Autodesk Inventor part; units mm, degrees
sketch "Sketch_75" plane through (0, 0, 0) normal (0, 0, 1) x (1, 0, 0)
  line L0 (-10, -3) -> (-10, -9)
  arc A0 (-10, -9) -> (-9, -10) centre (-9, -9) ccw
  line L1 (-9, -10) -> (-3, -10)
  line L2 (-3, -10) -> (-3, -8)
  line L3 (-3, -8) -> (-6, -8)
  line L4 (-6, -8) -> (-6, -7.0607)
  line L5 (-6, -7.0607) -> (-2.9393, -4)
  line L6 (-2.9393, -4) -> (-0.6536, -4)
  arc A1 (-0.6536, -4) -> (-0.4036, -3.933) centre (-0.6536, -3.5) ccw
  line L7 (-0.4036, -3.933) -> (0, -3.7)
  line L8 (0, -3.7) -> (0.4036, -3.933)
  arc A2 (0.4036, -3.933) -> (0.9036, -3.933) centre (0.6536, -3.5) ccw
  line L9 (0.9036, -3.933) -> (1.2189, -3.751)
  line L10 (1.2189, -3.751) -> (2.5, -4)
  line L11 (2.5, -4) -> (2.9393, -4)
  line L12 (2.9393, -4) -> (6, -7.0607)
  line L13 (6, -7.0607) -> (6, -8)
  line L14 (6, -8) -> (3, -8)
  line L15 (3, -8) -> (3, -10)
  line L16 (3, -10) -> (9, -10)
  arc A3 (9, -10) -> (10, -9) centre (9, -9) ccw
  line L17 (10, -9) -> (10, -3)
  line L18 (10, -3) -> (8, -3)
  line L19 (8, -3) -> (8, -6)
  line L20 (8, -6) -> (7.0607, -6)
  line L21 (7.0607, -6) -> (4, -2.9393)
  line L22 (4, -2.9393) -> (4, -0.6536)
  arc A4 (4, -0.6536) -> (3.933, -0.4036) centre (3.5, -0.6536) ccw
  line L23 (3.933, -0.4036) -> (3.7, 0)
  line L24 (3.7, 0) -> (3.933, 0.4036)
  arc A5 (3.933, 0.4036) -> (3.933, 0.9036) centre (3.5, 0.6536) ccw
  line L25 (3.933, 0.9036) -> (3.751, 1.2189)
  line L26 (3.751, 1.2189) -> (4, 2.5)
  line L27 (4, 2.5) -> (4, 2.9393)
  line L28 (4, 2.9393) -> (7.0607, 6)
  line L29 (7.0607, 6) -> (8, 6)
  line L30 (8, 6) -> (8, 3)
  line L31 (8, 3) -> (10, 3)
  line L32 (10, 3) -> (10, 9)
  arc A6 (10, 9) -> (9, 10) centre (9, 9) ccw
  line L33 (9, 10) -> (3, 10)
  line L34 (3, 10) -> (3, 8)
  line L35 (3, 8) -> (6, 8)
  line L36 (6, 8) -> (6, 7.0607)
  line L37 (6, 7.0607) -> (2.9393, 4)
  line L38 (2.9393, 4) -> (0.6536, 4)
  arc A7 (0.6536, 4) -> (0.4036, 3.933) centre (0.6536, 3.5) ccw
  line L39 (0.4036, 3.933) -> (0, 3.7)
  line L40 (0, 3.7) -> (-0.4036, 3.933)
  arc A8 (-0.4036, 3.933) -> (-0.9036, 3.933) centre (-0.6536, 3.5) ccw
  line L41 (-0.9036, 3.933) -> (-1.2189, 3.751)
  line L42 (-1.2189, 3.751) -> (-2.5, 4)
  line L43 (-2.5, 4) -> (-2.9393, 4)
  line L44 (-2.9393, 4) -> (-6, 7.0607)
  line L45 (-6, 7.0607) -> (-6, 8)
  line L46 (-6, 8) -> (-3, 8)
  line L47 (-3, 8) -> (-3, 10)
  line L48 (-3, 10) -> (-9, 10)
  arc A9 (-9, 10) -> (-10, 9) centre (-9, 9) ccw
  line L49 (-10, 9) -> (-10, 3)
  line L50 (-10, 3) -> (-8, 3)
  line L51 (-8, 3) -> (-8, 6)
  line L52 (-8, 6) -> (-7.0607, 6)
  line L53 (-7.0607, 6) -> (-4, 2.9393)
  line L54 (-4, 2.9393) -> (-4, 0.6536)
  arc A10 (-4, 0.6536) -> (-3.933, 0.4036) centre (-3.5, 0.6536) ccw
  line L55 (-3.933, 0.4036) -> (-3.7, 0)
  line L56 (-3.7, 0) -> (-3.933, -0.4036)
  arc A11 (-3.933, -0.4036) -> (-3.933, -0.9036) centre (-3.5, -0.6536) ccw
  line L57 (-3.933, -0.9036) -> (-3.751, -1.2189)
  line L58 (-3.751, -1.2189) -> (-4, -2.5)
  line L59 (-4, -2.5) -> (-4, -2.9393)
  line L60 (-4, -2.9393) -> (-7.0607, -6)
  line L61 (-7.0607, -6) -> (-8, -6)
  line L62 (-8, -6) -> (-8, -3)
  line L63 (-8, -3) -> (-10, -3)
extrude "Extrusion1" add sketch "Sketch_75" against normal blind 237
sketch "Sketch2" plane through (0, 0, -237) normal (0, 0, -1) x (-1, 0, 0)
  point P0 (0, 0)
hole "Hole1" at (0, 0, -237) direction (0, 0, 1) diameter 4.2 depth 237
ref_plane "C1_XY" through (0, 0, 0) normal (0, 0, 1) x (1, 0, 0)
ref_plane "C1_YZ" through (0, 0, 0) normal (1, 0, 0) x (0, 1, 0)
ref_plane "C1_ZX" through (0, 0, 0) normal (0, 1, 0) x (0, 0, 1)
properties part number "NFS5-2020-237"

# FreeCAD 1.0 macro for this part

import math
import FreeCAD as App
import Part
import Sketcher
Q = App.Units.Quantity

doc = App.newDocument("Part")
body = doc.addObject("PartDesign::Body", "Body")

# Sketch on XY plane
sketch1 = doc.addObject("Sketcher::SketchObject", "Sketch")
body.addObject(sketch1)
sketch1.AttachmentSupport = (doc.XY_Plane, [""])
sketch1.MapMode = "FlatFace"
sketch1.addGeometry([
    Part.LineSegment(App.Vector(-8, -3, 0), App.Vector(-10, -3, 0)),  # 0
    Part.LineSegment(App.Vector(-10, -3, 0), App.Vector(-10, -9, 0)),  # 1
    Part.ArcOfCircle(Part.Circle(App.Vector(-9, -9, 0), App.Vector(0, 0, 1), 1), math.radians(180), math.radians(270)),  # 2
    Part.LineSegment(App.Vector(-9, -10, 0), App.Vector(-3, -10, 0)),  # 3
    Part.LineSegment(App.Vector(-3, -10, 0), App.Vector(-3, -8, 0)),  # 4
    Part.LineSegment(App.Vector(-3, -8, 0), App.Vector(-6, -8, 0)),  # 5
    Part.LineSegment(App.Vector(-6, -8, 0), App.Vector(-6, -7.06, 0)),  # 6
    Part.LineSegment(App.Vector(-6, -7.06, 0), App.Vector(-2.94, -4, 0)),  # 7
    Part.LineSegment(App.Vector(-2.94, -4, 0), App.Vector(-0.65, -4, 0)),  # 8
    Part.ArcOfCircle(Part.Circle(App.Vector(-0.65, -3.5, 0), App.Vector(0, 0, 1), 0.5), math.radians(-90), math.radians(-60)),  # 9
    Part.LineSegment(App.Vector(-0.4, -3.93, 0), App.Vector(0, -3.7, 0)),  # 10
    Part.LineSegment(App.Vector(0, -3.7, 0), App.Vector(0.4, -3.93, 0)),  # 11
    Part.ArcOfCircle(Part.Circle(App.Vector(0.65, -3.5, 0), App.Vector(0, 0, 1), 0.5), math.radians(-120), math.radians(-60)),  # 12
    Part.LineSegment(App.Vector(0.9, -3.93, 0), App.Vector(1.22, -3.75, 0)),  # 13
    Part.LineSegment(App.Vector(1.22, -3.75, 0), App.Vector(2.5, -4, 0)),  # 14
    Part.LineSegment(App.Vector(2.5, -4, 0), App.Vector(2.94, -4, 0)),  # 15
    Part.LineSegment(App.Vector(2.94, -4, 0), App.Vector(6, -7.06, 0)),  # 16
    Part.LineSegment(App.Vector(6, -7.06, 0), App.Vector(6, -8, 0)),  # 17
    Part.LineSegment(App.Vector(6, -8, 0), App.Vector(3, -8, 0)),  # 18
    Part.LineSegment(App.Vector(3, -8, 0), App.Vector(3, -10, 0)),  # 19
    Part.LineSegment(App.Vector(3, -10, 0), App.Vector(9, -10, 0)),  # 20
    Part.ArcOfCircle(Part.Circle(App.Vector(9, -9, 0), App.Vector(0, 0, 1), 1), math.radians(-90), math.radians(0)),  # 21
    Part.LineSegment(App.Vector(10, -9, 0), App.Vector(10, -3, 0)),  # 22
    Part.LineSegment(App.Vector(10, -3, 0), App.Vector(8, -3, 0)),  # 23
    Part.LineSegment(App.Vector(8, -3, 0), App.Vector(8, -6, 0)),  # 24
    Part.LineSegment(App.Vector(8, -6, 0), App.Vector(7.06, -6, 0)),  # 25
    Part.LineSegment(App.Vector(7.06, -6, 0), App.Vector(4, -2.94, 0)),  # 26
    Part.LineSegment(App.Vector(4, -2.94, 0), App.Vector(4, -0.65, 0)),  # 27
    Part.ArcOfCircle(Part.Circle(App.Vector(3.5, -0.65, 0), App.Vector(0, 0, 1), 0.5), math.radians(0), math.radians(30)),  # 28
    Part.LineSegment(App.Vector(3.93, -0.4, 0), App.Vector(3.7, 0, 0)),  # 29
    Part.LineSegment(App.Vector(3.7, 0, 0), App.Vector(3.93, 0.4, 0)),  # 30
    Part.ArcOfCircle(Part.Circle(App.Vector(3.5, 0.65, 0), App.Vector(0, 0, 1), 0.5), math.radians(-30), math.radians(30)),  # 31
    Part.LineSegment(App.Vector(3.93, 0.9, 0), App.Vector(3.75, 1.22, 0)),  # 32
    Part.LineSegment(App.Vector(3.75, 1.22, 0), App.Vector(4, 2.5, 0)),  # 33
    Part.LineSegment(App.Vector(4, 2.5, 0), App.Vector(4, 2.94, 0)),  # 34
    Part.LineSegment(App.Vector(4, 2.94, 0), App.Vector(7.06, 6, 0)),  # 35
    Part.LineSegment(App.Vector(7.06, 6, 0), App.Vector(8, 6, 0)),  # 36
    Part.LineSegment(App.Vector(8, 6, 0), App.Vector(8, 3, 0)),  # 37
    Part.LineSegment(App.Vector(8, 3, 0), App.Vector(10, 3, 0)),  # 38
    Part.LineSegment(App.Vector(10, 3, 0), App.Vector(10, 9, 0)),  # 39
    Part.ArcOfCircle(Part.Circle(App.Vector(9, 9, 0), App.Vector(0, 0, 1), 1), math.radians(0), math.radians(90)),  # 40
    Part.LineSegment(App.Vector(9, 10, 0), App.Vector(3, 10, 0)),  # 41
    Part.LineSegment(App.Vector(3, 10, 0), App.Vector(3, 8, 0)),  # 42
    Part.LineSegment(App.Vector(3, 8, 0), App.Vector(6, 8, 0)),  # 43
    Part.LineSegment(App.Vector(6, 8, 0), App.Vector(6, 7.06, 0)),  # 44
    Part.LineSegment(App.Vector(6, 7.06, 0), App.Vector(2.94, 4, 0)),  # 45
    Part.LineSegment(App.Vector(2.94, 4, 0), App.Vector(0.65, 4, 0)),  # 46
    Part.ArcOfCircle(Part.Circle(App.Vector(0.65, 3.5, 0), App.Vector(0, 0, 1), 0.5), math.radians(90), math.radians(120)),  # 47
    Part.LineSegment(App.Vector(0.4, 3.93, 0), App.Vector(0, 3.7, 0)),  # 48
    Part.LineSegment(App.Vector(0, 3.7, 0), App.Vector(-0.4, 3.93, 0)),  # 49
    Part.ArcOfCircle(Part.Circle(App.Vector(-0.65, 3.5, 0), App.Vector(0, 0, 1), 0.5), math.radians(60), math.radians(120)),  # 50
    Part.LineSegment(App.Vector(-0.9, 3.93, 0), App.Vector(-1.22, 3.75, 0)),  # 51
    Part.LineSegment(App.Vector(-1.22, 3.75, 0), App.Vector(-2.5, 4, 0)),  # 52
    Part.LineSegment(App.Vector(-2.5, 4, 0), App.Vector(-2.94, 4, 0)),  # 53
    Part.LineSegment(App.Vector(-2.94, 4, 0), App.Vector(-6, 7.06, 0)),  # 54
    Part.LineSegment(App.Vector(-6, 7.06, 0), App.Vector(-6, 8, 0)),  # 55
    Part.LineSegment(App.Vector(-6, 8, 0), App.Vector(-3, 8, 0)),  # 56
    Part.LineSegment(App.Vector(-3, 8, 0), App.Vector(-3, 10, 0)),  # 57
    Part.LineSegment(App.Vector(-3, 10, 0), App.Vector(-9, 10, 0)),  # 58
    Part.ArcOfCircle(Part.Circle(App.Vector(-9, 9, 0), App.Vector(0, 0, 1), 1), math.radians(90), math.radians(180)),  # 59
    Part.LineSegment(App.Vector(-10, 9, 0), App.Vector(-10, 3, 0)),  # 60
    Part.LineSegment(App.Vector(-10, 3, 0), App.Vector(-8, 3, 0)),  # 61
    Part.LineSegment(App.Vector(-8, 3, 0), App.Vector(-8, 6, 0)),  # 62
    Part.LineSegment(App.Vector(-8, 6, 0), App.Vector(-7.06, 6, 0)),  # 63
    Part.LineSegment(App.Vector(-7.06, 6, 0), App.Vector(-4, 2.94, 0)),  # 64
    Part.LineSegment(App.Vector(-4, 2.94, 0), App.Vector(-4, 0.65, 0)),  # 65
    Part.ArcOfCircle(Part.Circle(App.Vector(-3.5, 0.65, 0), App.Vector(0, 0, 1), 0.5), math.radians(180), math.radians(210)),  # 66
    Part.LineSegment(App.Vector(-3.93, 0.4, 0), App.Vector(-3.7, 0, 0)),  # 67
    Part.LineSegment(App.Vector(-3.7, 0, 0), App.Vector(-3.93, -0.4, 0)),  # 68
    Part.ArcOfCircle(Part.Circle(App.Vector(-3.5, -0.65, 0), App.Vector(0, 0, 1), 0.5), math.radians(150), math.radians(210)),  # 69
    Part.LineSegment(App.Vector(-3.93, -0.9, 0), App.Vector(-3.75, -1.22, 0)),  # 70
    Part.LineSegment(App.Vector(-3.75, -1.22, 0), App.Vector(-4, -2.5, 0)),  # 71
    Part.LineSegment(App.Vector(-4, -2.5, 0), App.Vector(-4, -2.94, 0)),  # 72
    Part.LineSegment(App.Vector(-4, -2.94, 0), App.Vector(-7.06, -6, 0)),  # 73
    Part.LineSegment(App.Vector(-7.06, -6, 0), App.Vector(-8, -6, 0)),  # 74
    Part.LineSegment(App.Vector(-8, -6, 0), App.Vector(-8, -3, 0)),  # 75
], False)
sketch1.addConstraint([
    Sketcher.Constraint("Coincident", 0, 2, 1, 1),
    Sketcher.Constraint("Tangent", 1, 2, 2, 1),
    Sketcher.Constraint("Tangent", 2, 2, 3, 1),
    Sketcher.Constraint("Coincident", 3, 2, 4, 1),
    Sketcher.Constraint("Coincident", 4, 2, 5, 1),
    Sketcher.Constraint("Coincident", 5, 2, 6, 1),
    Sketcher.Constraint("Coincident", 6, 2, 7, 1),
    Sketcher.Constraint("Coincident", 7, 2, 8, 1),
    Sketcher.Constraint("Tangent", 8, 2, 9, 1),
    Sketcher.Constraint("Tangent", 9, 2, 10, 1),
    Sketcher.Constraint("Coincident", 10, 2, 11, 1),
    Sketcher.Constraint("Tangent", 11, 2, 12, 1),
    Sketcher.Constraint("Tangent", 12, 2, 13, 1),
    Sketcher.Constraint("Coincident", 13, 2, 14, 1),
    Sketcher.Constraint("Coincident", 14, 2, 15, 1),
    Sketcher.Constraint("Coincident", 15, 2, 16, 1),
    Sketcher.Constraint("Coincident", 16, 2, 17, 1),
    Sketcher.Constraint("Coincident", 17, 2, 18, 1),
    Sketcher.Constraint("Coincident", 18, 2, 19, 1),
    Sketcher.Constraint("Coincident", 19, 2, 20, 1),
    Sketcher.Constraint("Tangent", 20, 2, 21, 1),
    Sketcher.Constraint("Tangent", 21, 2, 22, 1),
    Sketcher.Constraint("Coincident", 22, 2, 23, 1),
    Sketcher.Constraint("Coincident", 23, 2, 24, 1),
    Sketcher.Constraint("Coincident", 24, 2, 25, 1),
    Sketcher.Constraint("Coincident", 25, 2, 26, 1),
    Sketcher.Constraint("Coincident", 26, 2, 27, 1),
    Sketcher.Constraint("Tangent", 27, 2, 28, 1),
    Sketcher.Constraint("Tangent", 28, 2, 29, 1),
    Sketcher.Constraint("Coincident", 29, 2, 30, 1),
    Sketcher.Constraint("Tangent", 30, 2, 31, 1),
    Sketcher.Constraint("Tangent", 31, 2, 32, 1),
    Sketcher.Constraint("Coincident", 32, 2, 33, 1),
    Sketcher.Constraint("Coincident", 33, 2, 34, 1),
    Sketcher.Constraint("Coincident", 34, 2, 35, 1),
    Sketcher.Constraint("Coincident", 35, 2, 36, 1),
    Sketcher.Constraint("Coincident", 36, 2, 37, 1),
    Sketcher.Constraint("Coincident", 37, 2, 38, 1),
    Sketcher.Constraint("Coincident", 38, 2, 39, 1),
    Sketcher.Constraint("Tangent", 39, 2, 40, 1),
    Sketcher.Constraint("Tangent", 40, 2, 41, 1),
    Sketcher.Constraint("Coincident", 41, 2, 42, 1),
    Sketcher.Constraint("Coincident", 42, 2, 43, 1),
    Sketcher.Constraint("Coincident", 43, 2, 44, 1),
    Sketcher.Constraint("Coincident", 44, 2, 45, 1),
    Sketcher.Constraint("Coincident", 45, 2, 46, 1),
    Sketcher.Constraint("Tangent", 46, 2, 47, 1),
    Sketcher.Constraint("Tangent", 47, 2, 48, 1),
    Sketcher.Constraint("Coincident", 48, 2, 49, 1),
    Sketcher.Constraint("Tangent", 49, 2, 50, 1),
    Sketcher.Constraint("Tangent", 50, 2, 51, 1),
    Sketcher.Constraint("Coincident", 51, 2, 52, 1),
    Sketcher.Constraint("Coincident", 52, 2, 53, 1),
    Sketcher.Constraint("Coincident", 53, 2, 54, 1),
    Sketcher.Constraint("Coincident", 54, 2, 55, 1),
    Sketcher.Constraint("Coincident", 55, 2, 56, 1),
    Sketcher.Constraint("Coincident", 56, 2, 57, 1),
    Sketcher.Constraint("Coincident", 57, 2, 58, 1),
    Sketcher.Constraint("Tangent", 58, 2, 59, 1),
    Sketcher.Constraint("Tangent", 59, 2, 60, 1),
    Sketcher.Constraint("Coincident", 60, 2, 61, 1),
    Sketcher.Constraint("Coincident", 61, 2, 62, 1),
    Sketcher.Constraint("Coincident", 62, 2, 63, 1),
    Sketcher.Constraint("Coincident", 63, 2, 64, 1),
    Sketcher.Constraint("Coincident", 64, 2, 65, 1),
    Sketcher.Constraint("Tangent", 65, 2, 66, 1),
    Sketcher.Constraint("Tangent", 66, 2, 67, 1),
    Sketcher.Constraint("Coincident", 67, 2, 68, 1),
    Sketcher.Constraint("Tangent", 68, 2, 69, 1),
    Sketcher.Constraint("Tangent", 69, 2, 70, 1),
    Sketcher.Constraint("Coincident", 70, 2, 71, 1),
    Sketcher.Constraint("Coincident", 71, 2, 72, 1),
    Sketcher.Constraint("Coincident", 72, 2, 73, 1),
    Sketcher.Constraint("Coincident", 73, 2, 74, 1),
    Sketcher.Constraint("Coincident", 74, 2, 75, 1),
    Sketcher.Constraint("Coincident", 75, 2, 0, 1),
    Sketcher.Constraint("Horizontal", 0),
    Sketcher.Constraint("Vertical", 1),
    Sketcher.Constraint("Horizontal", 3),
    Sketcher.Constraint("Vertical", 4),
    Sketcher.Constraint("Horizontal", 5),
    Sketcher.Constraint("Vertical", 6),
    Sketcher.Constraint("Horizontal", 8),
    Sketcher.Constraint("Horizontal", 15),
    Sketcher.Constraint("Vertical", 17),
    Sketcher.Constraint("Horizontal", 18),
    Sketcher.Constraint("Vertical", 19),
    Sketcher.Constraint("Horizontal", 20),
    Sketcher.Constraint("Vertical", 22),
    Sketcher.Constraint("Horizontal", 23),
    Sketcher.Constraint("Vertical", 24),
    Sketcher.Constraint("Horizontal", 25),
    Sketcher.Constraint("Vertical", 27),
    Sketcher.Constraint("Vertical", 34),
    Sketcher.Constraint("Horizontal", 36),
    Sketcher.Constraint("Vertical", 37),
    Sketcher.Constraint("Horizontal", 38),
    Sketcher.Constraint("Vertical", 39),
    Sketcher.Constraint("Horizontal", 41),
    Sketcher.Constraint("Vertical", 42),
    Sketcher.Constraint("Horizontal", 43),
    Sketcher.Constraint("Vertical", 44),
    Sketcher.Constraint("Horizontal", 46),
    Sketcher.Constraint("Horizontal", 53),
    Sketcher.Constraint("Vertical", 55),
    Sketcher.Constraint("Horizontal", 56),
    Sketcher.Constraint("Vertical", 57),
    Sketcher.Constraint("Horizontal", 58),
    Sketcher.Constraint("Vertical", 60),
    Sketcher.Constraint("Horizontal", 61),
    Sketcher.Constraint("Vertical", 62),
    Sketcher.Constraint("Horizontal", 63),
    Sketcher.Constraint("Vertical", 65),
    Sketcher.Constraint("Vertical", 72),
    Sketcher.Constraint("Horizontal", 74),
    Sketcher.Constraint("Vertical", 75),
    Sketcher.Constraint("Equal", 9, 12),
    Sketcher.Constraint("Equal", 2, 21),
    Sketcher.Constraint("Equal", 12, 28),
    Sketcher.Constraint("Equal", 28, 31),
    Sketcher.Constraint("Equal", 21, 40),
    Sketcher.Constraint("Equal", 31, 47),
    Sketcher.Constraint("Equal", 47, 50),
    Sketcher.Constraint("Equal", 40, 59),
    Sketcher.Constraint("Equal", 50, 66),
    Sketcher.Constraint("Equal", 66, 69),
    Sketcher.Constraint("Symmetric", 2, 3, 40, 3, -1, 1),
    Sketcher.Constraint("Symmetric", 9, 3, 47, 3, -1, 1),
    Sketcher.Constraint("Symmetric", 12, 3, 50, 3, -1, 1),
    Sketcher.Constraint("Symmetric", 21, 3, 59, 3, -1, 1),
    Sketcher.Constraint("Symmetric", 28, 3, 66, 3, -1, 1),
    Sketcher.Constraint("Symmetric", 31, 3, 69, 3, -1, 1),
    Sketcher.Constraint("Symmetric", 4, 2, 42, 2, -1, 1),
    Sketcher.Constraint("Symmetric", 6, 2, 44, 2, -1, 1),
    Sketcher.Constraint("Symmetric", 10, 2, 48, 2, -1, 1),
    Sketcher.Constraint("Symmetric", 13, 2, 51, 2, -1, 1),
    Sketcher.Constraint("Symmetric", 14, 2, 52, 2, -1, 1),
    Sketcher.Constraint("Symmetric", 16, 2, 54, 2, -1, 1),
    Sketcher.Constraint("Symmetric", 18, 2, 56, 2, -1, 1),
    Sketcher.Constraint("Symmetric", 23, 2, 61, 2, -1, 1),
    Sketcher.Constraint("Symmetric", 25, 2, 63, 2, -1, 1),
    Sketcher.Constraint("Symmetric", 29, 2, 67, 2, -1, 1),
    Sketcher.Constraint("Symmetric", 32, 2, 70, 2, -1, 1),
    Sketcher.Constraint("Symmetric", 33, 2, 71, 2, -1, 1),
    Sketcher.Constraint("Symmetric", 35, 2, 73, 2, -1, 1),
    Sketcher.Constraint("Symmetric", 37, 2, 75, 2, -1, 1),
    Sketcher.Constraint("Symmetric", 9, 3, 12, 3, -2),
    Sketcher.Constraint("Symmetric", 2, 3, 21, 3, -2),
    Sketcher.Constraint("Symmetric", 31, 3, 66, 3, -2),
    Sketcher.Constraint("Symmetric", 7, 2, 15, 2, -2),
    Sketcher.Constraint("Symmetric", 6, 2, 16, 2, -2),
    Sketcher.Constraint("Symmetric", 4, 2, 18, 2, -2),
    Sketcher.Constraint("Symmetric", 37, 2, 61, 2, -2),
    Sketcher.Constraint("Symmetric", 35, 2, 63, 2, -2),
    Sketcher.Constraint("Symmetric", 34, 2, 64, 2, -2),
    Sketcher.Constraint("PointOnObject", 10, 2, -2),
    Sketcher.Constraint("PointOnObject", 29, 2, -1),
    Sketcher.Constraint("Parallel", 10, 13),
    Sketcher.Constraint("Perpendicular", 7, 16),
    Sketcher.Constraint("Parallel", 16, 26),
    Sketcher.Constraint("Perpendicular", 13, 29),
    Sketcher.Constraint("Parallel", 29, 32),
    Sketcher.Constraint("Perpendicular", 14, 33),
    Sketcher.Constraint("Perpendicular", 26, 35),
    Sketcher.Constraint("Parallel", 35, 45),
    Sketcher.Constraint("Perpendicular", 45, 54),
    Sketcher.Constraint("Perpendicular", 64, 73),
    Sketcher.Constraint("Equal", 58, 1),
    Sketcher.Constraint("Equal", 61, 4),
    Sketcher.Constraint("Equal", 74, 6),
    Sketcher.Constraint("Equal", 56, 24),
    Sketcher.Constraint("Equal", 46, 27),
    Sketcher.Constraint("Equal", 53, 34),
    Sketcher.Constraint("Equal", 16, 26),
    Sketcher.Constraint("Equal", 11, 29),
    Sketcher.Constraint("Radius", 2, 1.0),
    Sketcher.Constraint("Radius", 9, 0.5),
    Sketcher.Constraint("DistanceX", 0, 2, 0, 1, 2.0),
    Sketcher.Constraint("DistanceX", 3, 1, 3, 2, 6.0),
    Sketcher.Constraint("DistanceX", 5, 2, 5, 1, 3.0),
    Sketcher.Constraint("Angle", 14, Q("-10.999 deg")),
    Sketcher.Constraint("DistanceX", 2, 3, -1, 1, 9.0),
    Sketcher.Constraint("DistanceY", 7, 2, -1, 1, 4.0),
    Sketcher.Constraint("DistanceY", 10, 2, -1, 1, 3.7),
    Sketcher.Constraint("DistanceX", -1, 1, 14, 2, 2.5),
    Sketcher.Constraint("Distance", 10, 0.466),
    Sketcher.Constraint("DistanceX", 8, 1, 8, 2, 2.2857),
])
pad1 = doc.addObject("PartDesign::Pad", "Pad")
body.addObject(pad1)
pad1.Profile = sketch1
pad1.Length = 237
pad1.Reversed = True

# Sketch on XY plane
sketch2 = doc.addObject("Sketcher::SketchObject", "Sketch001")
body.addObject(sketch2)
sketch2.AttachmentSupport = (doc.XY_Plane, [""])
sketch2.MapMode = "FlatFace"
sketch2.AttachmentOffset = App.Placement(App.Vector(0, 0, -237), App.Rotation())
sketch2.addGeometry(Part.Circle(App.Vector(0, 0, 0), App.Vector(0, 0, 1), 2.1), False)
sketch2.addConstraint([
    Sketcher.Constraint("Coincident", 0, 3, -1, 1),
    Sketcher.Constraint("Diameter", 0, 4.2),
])
doc.recompute()
hole = doc.addObject("PartDesign::Hole", "Hole")
body.addObject(hole)
hole.Profile = sketch2
hole.ThreadType = "None"
hole.Diameter = 4.2
hole.DepthType = "Dimension"
hole.Depth = 237
hole.DrillPoint = "Flat"
hole.Reversed = True

doc.recompute()
